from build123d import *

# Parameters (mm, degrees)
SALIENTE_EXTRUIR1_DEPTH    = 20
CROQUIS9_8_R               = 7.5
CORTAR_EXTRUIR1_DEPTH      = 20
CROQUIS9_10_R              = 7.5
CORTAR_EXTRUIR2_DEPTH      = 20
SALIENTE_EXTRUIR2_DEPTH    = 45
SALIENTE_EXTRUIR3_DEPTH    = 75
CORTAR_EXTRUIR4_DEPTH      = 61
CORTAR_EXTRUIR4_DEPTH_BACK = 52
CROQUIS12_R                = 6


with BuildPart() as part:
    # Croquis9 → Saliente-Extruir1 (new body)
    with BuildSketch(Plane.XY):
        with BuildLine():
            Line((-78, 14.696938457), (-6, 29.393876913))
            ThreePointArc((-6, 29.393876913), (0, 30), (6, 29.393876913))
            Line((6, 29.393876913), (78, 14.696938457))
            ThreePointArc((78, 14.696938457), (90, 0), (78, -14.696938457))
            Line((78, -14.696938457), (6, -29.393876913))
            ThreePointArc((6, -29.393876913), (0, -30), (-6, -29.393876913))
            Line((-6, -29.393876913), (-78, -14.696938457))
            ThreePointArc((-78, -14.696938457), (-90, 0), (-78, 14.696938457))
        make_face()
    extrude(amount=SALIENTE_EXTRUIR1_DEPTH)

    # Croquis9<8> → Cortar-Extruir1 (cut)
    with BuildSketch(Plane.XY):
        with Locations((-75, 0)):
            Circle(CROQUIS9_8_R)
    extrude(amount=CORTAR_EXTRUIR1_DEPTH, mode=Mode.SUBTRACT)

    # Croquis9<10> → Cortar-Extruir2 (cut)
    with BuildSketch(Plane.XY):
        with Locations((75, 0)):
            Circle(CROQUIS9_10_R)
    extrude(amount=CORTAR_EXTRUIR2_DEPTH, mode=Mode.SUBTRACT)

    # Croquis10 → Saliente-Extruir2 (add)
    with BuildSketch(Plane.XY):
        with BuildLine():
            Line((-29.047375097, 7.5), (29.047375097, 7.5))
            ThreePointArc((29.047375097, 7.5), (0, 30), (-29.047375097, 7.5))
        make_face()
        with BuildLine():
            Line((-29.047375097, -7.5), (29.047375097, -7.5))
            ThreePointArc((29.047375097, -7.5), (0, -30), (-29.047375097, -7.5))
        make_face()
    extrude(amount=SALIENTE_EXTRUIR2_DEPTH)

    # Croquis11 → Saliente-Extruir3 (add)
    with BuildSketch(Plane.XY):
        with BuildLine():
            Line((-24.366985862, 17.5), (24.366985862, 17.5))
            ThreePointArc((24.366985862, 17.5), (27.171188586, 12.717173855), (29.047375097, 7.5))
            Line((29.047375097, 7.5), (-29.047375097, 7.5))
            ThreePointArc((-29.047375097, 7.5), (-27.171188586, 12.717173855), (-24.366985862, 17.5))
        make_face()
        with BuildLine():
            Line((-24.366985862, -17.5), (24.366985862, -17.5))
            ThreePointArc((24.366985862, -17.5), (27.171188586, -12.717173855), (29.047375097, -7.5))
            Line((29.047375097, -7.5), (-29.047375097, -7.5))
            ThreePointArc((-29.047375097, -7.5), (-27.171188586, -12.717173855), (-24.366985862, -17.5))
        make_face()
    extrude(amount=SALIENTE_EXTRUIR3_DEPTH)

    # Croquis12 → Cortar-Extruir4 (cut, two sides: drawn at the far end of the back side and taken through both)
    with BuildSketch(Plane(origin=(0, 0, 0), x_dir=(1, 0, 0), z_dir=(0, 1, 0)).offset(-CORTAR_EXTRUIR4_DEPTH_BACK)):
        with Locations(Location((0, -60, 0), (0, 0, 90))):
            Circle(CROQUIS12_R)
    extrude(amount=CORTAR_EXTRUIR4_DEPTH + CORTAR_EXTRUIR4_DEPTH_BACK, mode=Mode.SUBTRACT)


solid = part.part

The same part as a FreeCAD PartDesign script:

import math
import FreeCAD as App
import Part
import Sketcher
from FreeCAD import Vector
Q = App.Units.Quantity

doc = App.newDocument("Part")
body = doc.addObject("PartDesign::Body", "Body")

# Sketch on XY plane
sketch1 = doc.addObject("Sketcher::SketchObject", "Sketch")
body.addObject(sketch1)
sketch1.AttachmentSupport = (doc.XY_Plane, [""])
sketch1.MapMode = "FlatFace"
sketch1.addGeometry([
    Part.LineSegment(Vector(-6, 29, 0), Vector(-78, 15, 0)),  # 0
    Part.ArcOfCircle(Part.Circle(Vector(-75, 0, 0), Vector(0, 0, 1), 15), math.radians(102), math.radians(258)),  # 1
    Part.LineSegment(Vector(-78, -15, 0), Vector(-6, -29, 0)),  # 2
    Part.ArcOfCircle(Part.Circle(Vector(0, 0, 0), Vector(0, 0, 1), 30), math.radians(-102), math.radians(-78)),  # 3
    Part.LineSegment(Vector(6, -29, 0), Vector(78, -15, 0)),  # 4
    Part.ArcOfCircle(Part.Circle(Vector(75, 0, 0), Vector(0, 0, 1), 15), math.radians(-78), math.radians(78)),  # 5
    Part.LineSegment(Vector(78, 15, 0), Vector(6, 29, 0)),  # 6
    Part.ArcOfCircle(Part.Circle(Vector(0, 0, 0), Vector(0, 0, 1), 30), math.radians(78), math.radians(102)),  # 7
], False)
sketch1.addConstraint([
    Sketcher.Constraint("Tangent", 0, 2, 1, 1),
    Sketcher.Constraint("Tangent", 1, 2, 2, 1),
    Sketcher.Constraint("Tangent", 2, 2, 3, 1),
    Sketcher.Constraint("Tangent", 3, 2, 4, 1),
    Sketcher.Constraint("Tangent", 4, 2, 5, 1),
    Sketcher.Constraint("Tangent", 5, 2, 6, 1),
    Sketcher.Constraint("Tangent", 6, 2, 7, 1),
    Sketcher.Constraint("Tangent", 7, 2, 0, 1),
    Sketcher.Constraint("Coincident", 3, 3, -1, 1),
    Sketcher.Constraint("Coincident", 7, 3, -1, 1),
    Sketcher.Constraint("Equal", 1, 5),
    Sketcher.Constraint("Equal", 3, 7),
    Sketcher.Constraint("Symmetric", 1, 3, 5, 3, -1, 1),
    Sketcher.Constraint("PointOnObject", 1, 3, -1),
    Sketcher.Constraint("Radius", 1, Q("15 mm")),
    Sketcher.Constraint("Radius", 3, Q("30 mm")),
    Sketcher.Constraint("DistanceX", 1, 3, -1, 1, Q("75 mm")),
])
pad1 = doc.addObject("PartDesign::Pad", "Pad")
body.addObject(pad1)
pad1.Profile = sketch1
pad1.Length = 20

# Sketch on XY plane
sketch2 = doc.addObject("Sketcher::SketchObject", "Sketch001")
body.addObject(sketch2)
sketch2.AttachmentSupport = (doc.XY_Plane, [""])
sketch2.MapMode = "FlatFace"
sketch2.addGeometry(Part.Circle(Vector(-75, 0, 0), Vector(0, 0, 1), 8), False)
sketch2.addConstraint([
    Sketcher.Constraint("PointOnObject", 0, 3, -1),
    Sketcher.Constraint("Diameter", 0, Q("15 mm")),
    Sketcher.Constraint("DistanceX", 0, 3, -1, 1, Q("75 mm")),
])
pocket1 = doc.addObject("PartDesign::Pocket", "Pocket")
body.addObject(pocket1)
pocket1.Profile = sketch2
pocket1.Length = 20
pocket1.Reversed = True

# Sketch on XY plane
sketch3 = doc.addObject("Sketcher::SketchObject", "Sketch002")
body.addObject(sketch3)
sketch3.AttachmentSupport = (doc.XY_Plane, [""])
sketch3.MapMode = "FlatFace"
sketch3.addGeometry(Part.Circle(Vector(75, 0, 0), Vector(0, 0, 1), 8), False)
sketch3.addConstraint([
    Sketcher.Constraint("PointOnObject", 0, 3, -1),
    Sketcher.Constraint("Diameter", 0, Q("15 mm")),
    Sketcher.Constraint("DistanceX", -1, 1, 0, 3, Q("75 mm")),
])
pocket2 = doc.addObject("PartDesign::Pocket", "Pocket001")
body.addObject(pocket2)
pocket2.Profile = sketch3
pocket2.Length = 20
pocket2.Reversed = True

# Sketch on XY plane
sketch4 = doc.addObject("Sketcher::SketchObject", "Sketch003")
body.addObject(sketch4)
sketch4.AttachmentSupport = (doc.XY_Plane, [""])
sketch4.MapMode = "FlatFace"
sketch4.addGeometry([
    Part.LineSegment(Vector(-29, 8, 0), Vector(29, 8, 0)),
    Part.ArcOfCircle(Part.Circle(Vector(0, 0, 0), Vector(0, 0, 1), 30), math.radians(14), math.radians(166)),
    Part.LineSegment(Vector(29, -8, 0), Vector(-29, -8, 0)),
    Part.ArcOfCircle(Part.Circle(Vector(0, 0, 0), Vector(0, 0, 1), 30), math.radians(-166), math.radians(-14)),
], False)
sketch4.addConstraint([
    Sketcher.Constraint("Coincident", 0, 1, 1, 2),
    Sketcher.Constraint("Coincident", 1, 1, 0, 2),
    Sketcher.Constraint("Coincident", 2, 1, 3, 2),
    Sketcher.Constraint("Coincident", 3, 1, 2, 2),
    Sketcher.Constraint("Horizontal", 0),
    Sketcher.Constraint("Horizontal", 2),
    Sketcher.Constraint("Coincident", 1, 3, -1, 1),
    Sketcher.Constraint("Coincident", 3, 3, -1, 1),
    Sketcher.Constraint("Equal", 1, 3),
    Sketcher.Constraint("Vertical", 1, 1, 2, 1),
    Sketcher.Constraint("Radius", 1, Q("30 mm")),
    Sketcher.Constraint("DistanceY", 2, 1, 1, 1, Q("15 mm")),
])
pad2 = doc.addObject("PartDesign::Pad", "Pad001")
body.addObject(pad2)
pad2.Profile = sketch4
pad2.Length = 45

# Sketch on XY plane
sketch5 = doc.addObject("Sketcher::SketchObject", "Sketch004")
body.addObject(sketch5)
sketch5.AttachmentSupport = (doc.XY_Plane, [""])
sketch5.MapMode = "FlatFace"
sketch5.addGeometry([
    Part.LineSegment(Vector(24, 18, 0), Vector(-24, 18, 0)),  # 0
    Part.ArcOfCircle(Part.Circle(Vector(0, 0, 0), Vector(0, 0, 1), 30), math.radians(144), math.radians(166)),  # 1
    Part.LineSegment(Vector(-29, 8, 0), Vector(29, 8, 0)),  # 2
    Part.ArcOfCircle(Part.Circle(Vector(0, 0, 0), Vector(0, 0, 1), 30), math.radians(14), math.radians(36)),  # 3
    Part.LineSegment(Vector(-24, -18, 0), Vector(24, -18, 0)),  # 4
    Part.ArcOfCircle(Part.Circle(Vector(0, 0, 0), Vector(0, 0, 1), 30), math.radians(-36), math.radians(-14)),  # 5
    Part.LineSegment(Vector(29, -8, 0), Vector(-29, -8, 0)),  # 6
    Part.ArcOfCircle(Part.Circle(Vector(0, 0, 0), Vector(0, 0, 1), 30), math.radians(-166), math.radians(-144)),  # 7
], False)
sketch5.addConstraint([
    Sketcher.Constraint("Coincident", 0, 2, 1, 1),
    Sketcher.Constraint("Coincident", 1, 2, 2, 1),
    Sketcher.Constraint("Coincident", 2, 2, 3, 1),
    Sketcher.Constraint("Coincident", 3, 2, 0, 1),
    Sketcher.Constraint("Coincident", 4, 2, 5, 1),
    Sketcher.Constraint("Coincident", 5, 2, 6, 1),
    Sketcher.Constraint("Coincident", 6, 2, 7, 1),
    Sketcher.Constraint("Coincident", 7, 2, 4, 1),
    Sketcher.Constraint("Horizontal", 0),
    Sketcher.Constraint("Horizontal", 2),
    Sketcher.Constraint("Horizontal", 4),
    Sketcher.Constraint("Horizontal", 6),
    Sketcher.Constraint("Coincident", 1, 3, -1, 1),
    Sketcher.Constraint("Coincident", 3, 3, -1, 1),
    Sketcher.Constraint("Coincident", 5, 3, -1, 1),
    Sketcher.Constraint("Coincident", 7, 3, -1, 1),
    Sketcher.Constraint("Equal", 1, 3),
    Sketcher.Constraint("Equal", 3, 5),
    Sketcher.Constraint("Equal", 5, 7),
    Sketcher.Constraint("Vertical", 3, 2, 4, 2),
    Sketcher.Constraint("Vertical", 2, 2, 5, 2),
    Sketcher.Constraint("Radius", 1, Q("30 mm")),
    Sketcher.Constraint("DistanceY", 1, 2, 0, 2, Q("10 mm")),
    Sketcher.Constraint("DistanceY", 4, 2, 2, 2, Q("25 mm")),
])
pad3 = doc.addObject("PartDesign::Pad", "Pad002")
body.addObject(pad3)
pad3.Profile = sketch5
pad3.Length = 75

# Sketch on XZ plane
sketch6 = doc.addObject("Sketcher::SketchObject", "Sketch005")
body.addObject(sketch6)
sketch6.AttachmentSupport = (doc.XZ_Plane, [""])
sketch6.MapMode = "FlatFace"
sketch6.addGeometry(Part.Circle(Vector(0, 60, 0), Vector(0, 0, 1), 6), False)
sketch6.addConstraint([
    Sketcher.Constraint("PointOnObject", 0, 3, -2),
    Sketcher.Constraint("Diameter", 0, Q("12 mm")),
    Sketcher.Constraint("DistanceY", -1, 1, 0, 3, Q("60 mm")),
])
pocket3 = doc.addObject("PartDesign::Pocket", "Pocket002")
body.addObject(pocket3)
pocket3.Profile = sketch6
pocket3.Type = "ThroughAll"
pocket3.Midplane = True

doc.recompute()
